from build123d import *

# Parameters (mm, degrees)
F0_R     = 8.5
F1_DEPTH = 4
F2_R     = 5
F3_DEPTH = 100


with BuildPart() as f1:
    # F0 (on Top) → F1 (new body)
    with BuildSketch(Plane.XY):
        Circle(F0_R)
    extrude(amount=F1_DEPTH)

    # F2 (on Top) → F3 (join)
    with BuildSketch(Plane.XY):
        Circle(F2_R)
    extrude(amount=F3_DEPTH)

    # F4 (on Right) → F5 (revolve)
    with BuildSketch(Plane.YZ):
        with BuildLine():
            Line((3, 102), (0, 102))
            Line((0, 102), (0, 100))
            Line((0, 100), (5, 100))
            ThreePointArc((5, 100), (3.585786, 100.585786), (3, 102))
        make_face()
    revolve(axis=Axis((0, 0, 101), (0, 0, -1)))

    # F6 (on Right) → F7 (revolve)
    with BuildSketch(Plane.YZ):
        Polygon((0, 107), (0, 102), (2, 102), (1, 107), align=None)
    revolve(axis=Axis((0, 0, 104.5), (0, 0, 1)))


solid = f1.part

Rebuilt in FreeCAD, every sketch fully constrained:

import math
import FreeCAD as App
import Part
import Sketcher

V = App.Vector

doc = App.newDocument("Part")
params = doc.addObject("Spreadsheet::Sheet", "Params")
for row, (alias, value) in enumerate([
    ("sketch1_diameter", "17 mm"),
    ("pad1_length", "4 mm"),
    ("sketch2_diameter", "10 mm"),
    ("pad2_length", "100 mm"),
    ("sketch3_radius", "1.999999 mm"),
    ("sketch3_width", "3 mm"),
    ("revolution_angle", "360 deg"),
    ("sketch4_width", "2 mm"),
    ("sketch4_width2", "1 mm"),
    ("sketch4_height", "5 mm"),
    ("revolution2_angle", "360 deg"),
], start=1):
    params.set(f"A{row}", alias)
    params.set(f"B{row}", "=" + value)
    params.setAlias(f"B{row}", alias)

body = doc.addObject("PartDesign::Body", "Body")

sketch1 = body.newObject("Sketcher::SketchObject", "Sketch")
sketch1.AttachmentSupport = (doc.getObject("XY_Plane"), [""])
sketch1.MapMode = "FlatFace"
sketch1.addGeometry(Part.Circle(V(0, 0, 0), V(0, 0, 1), 8.5), False)
sketch1.addConstraint([
    Sketcher.Constraint("Coincident", 0, 3, -1, 1),
    Sketcher.Constraint("Diameter", 0, 17.0),
])
sketch1.setExpression("Constraints[1]", "Params.sketch1_diameter")
pad1 = body.newObject("PartDesign::Pad", "Pad")
pad1.Profile = sketch1
pad1.setExpression("Length", "Params.pad1_length")

sketch2 = body.newObject("Sketcher::SketchObject", "Sketch001")
sketch2.AttachmentSupport = (doc.getObject("XY_Plane"), [""])
sketch2.MapMode = "FlatFace"
sketch2.addGeometry(Part.Circle(V(0, 0, 0), V(0, 0, 1), 5), False)
sketch2.addConstraint([
    Sketcher.Constraint("Coincident", 0, 3, -1, 1),
    Sketcher.Constraint("Diameter", 0, 10.0),
])
sketch2.setExpression("Constraints[1]", "Params.sketch2_diameter")
pad2 = body.newObject("PartDesign::Pad", "Pad001")
pad2.Profile = sketch2
pad2.setExpression("Length", "Params.pad2_length")

sketch3 = body.newObject("Sketcher::SketchObject", "Sketch002")
sketch3.AttachmentSupport = (doc.getObject("YZ_Plane"), [""])
sketch3.MapMode = "FlatFace"
sketch3.addGeometry([
    Part.LineSegment(V(3, 102, 0), V(0, 102, 0)),
    Part.LineSegment(V(0, 102, 0), V(0, 100, 0)),
    Part.LineSegment(V(0, 100, 0), V(5, 100, 0)),
    Part.ArcOfCircle(Part.Circle(V(4.999999, 101.999999, 0), V(0, 0, 1), 1.999999), math.radians(179.999957), math.radians(270.000043)),
], False)
sketch3.addConstraint([
    Sketcher.Constraint("Coincident", 0, 2, 1, 1),
    Sketcher.Constraint("Coincident", 1, 2, 2, 1),
    Sketcher.Constraint("Tangent", 2, 2, 3, 2),
    Sketcher.Constraint("Coincident", 3, 1, 0, 1),
    Sketcher.Constraint("Horizontal", 0),
    Sketcher.Constraint("Vertical", 1),
    Sketcher.Constraint("Horizontal", 2),
    Sketcher.Constraint("PointOnObject", 0, 2, -2),
    Sketcher.Constraint("Horizontal", 3, 3, 0, 2),
    Sketcher.Constraint("Radius", 3, 1.999999),
    Sketcher.Constraint("DistanceX", 0, 2, 0, 1, 3.0),
    Sketcher.Constraint("DistanceY", -1, 1, 3, 3, 101.999999),
])
sketch3.setExpression("Constraints[9]", "Params.sketch3_radius")
sketch3.setExpression("Constraints[10]", "Params.sketch3_width")
revolution = body.newObject("PartDesign::Revolution", "Revolution")
revolution.Profile = sketch3
revolution.ReferenceAxis = (sketch3, ["V_Axis"])
revolution.setExpression("Angle", "Params.revolution_angle")

sketch4 = body.newObject("Sketcher::SketchObject", "Sketch003")
sketch4.AttachmentSupport = (doc.getObject("YZ_Plane"), [""])
sketch4.MapMode = "FlatFace"
sketch4.addGeometry([
    Part.LineSegment(V(0, 107, 0), V(0, 102, 0)),
    Part.LineSegment(V(0, 102, 0), V(2, 102, 0)),
    Part.LineSegment(V(2, 102, 0), V(1, 107, 0)),
    Part.LineSegment(V(1, 107, 0), V(0, 107, 0)),
], False)
sketch4.addConstraint([
    Sketcher.Constraint("Coincident", 0, 2, 1, 1),
    Sketcher.Constraint("Coincident", 1, 2, 2, 1),
    Sketcher.Constraint("Coincident", 2, 2, 3, 1),
    Sketcher.Constraint("Coincident", 3, 2, 0, 1),
    Sketcher.Constraint("Vertical", 0),
    Sketcher.Constraint("Horizontal", 1),
    Sketcher.Constraint("Horizontal", 3),
    Sketcher.Constraint("PointOnObject", 0, 2, -2),
    Sketcher.Constraint("DistanceX", 1, 1, 1, 2, 2.0),
    Sketcher.Constraint("DistanceX", 3, 2, 3, 1, 1.0),
    Sketcher.Constraint("DistanceY", 0, 2, 0, 1, 5.0),
    Sketcher.Constraint("DistanceY", -1, 1, 0, 2, 102.0),
])
sketch4.setExpression("Constraints[8]", "Params.sketch4_width")
sketch4.setExpression("Constraints[9]", "Params.sketch4_width2")
sketch4.setExpression("Constraints[10]", "Params.sketch4_height")
revolution2 = body.newObject("PartDesign::Revolution", "Revolution001")
revolution2.Profile = sketch4
revolution2.ReferenceAxis = (sketch4, ["V_Axis"])
revolution2.setExpression("Angle", "Params.revolution2_angle")

doc.recompute()
